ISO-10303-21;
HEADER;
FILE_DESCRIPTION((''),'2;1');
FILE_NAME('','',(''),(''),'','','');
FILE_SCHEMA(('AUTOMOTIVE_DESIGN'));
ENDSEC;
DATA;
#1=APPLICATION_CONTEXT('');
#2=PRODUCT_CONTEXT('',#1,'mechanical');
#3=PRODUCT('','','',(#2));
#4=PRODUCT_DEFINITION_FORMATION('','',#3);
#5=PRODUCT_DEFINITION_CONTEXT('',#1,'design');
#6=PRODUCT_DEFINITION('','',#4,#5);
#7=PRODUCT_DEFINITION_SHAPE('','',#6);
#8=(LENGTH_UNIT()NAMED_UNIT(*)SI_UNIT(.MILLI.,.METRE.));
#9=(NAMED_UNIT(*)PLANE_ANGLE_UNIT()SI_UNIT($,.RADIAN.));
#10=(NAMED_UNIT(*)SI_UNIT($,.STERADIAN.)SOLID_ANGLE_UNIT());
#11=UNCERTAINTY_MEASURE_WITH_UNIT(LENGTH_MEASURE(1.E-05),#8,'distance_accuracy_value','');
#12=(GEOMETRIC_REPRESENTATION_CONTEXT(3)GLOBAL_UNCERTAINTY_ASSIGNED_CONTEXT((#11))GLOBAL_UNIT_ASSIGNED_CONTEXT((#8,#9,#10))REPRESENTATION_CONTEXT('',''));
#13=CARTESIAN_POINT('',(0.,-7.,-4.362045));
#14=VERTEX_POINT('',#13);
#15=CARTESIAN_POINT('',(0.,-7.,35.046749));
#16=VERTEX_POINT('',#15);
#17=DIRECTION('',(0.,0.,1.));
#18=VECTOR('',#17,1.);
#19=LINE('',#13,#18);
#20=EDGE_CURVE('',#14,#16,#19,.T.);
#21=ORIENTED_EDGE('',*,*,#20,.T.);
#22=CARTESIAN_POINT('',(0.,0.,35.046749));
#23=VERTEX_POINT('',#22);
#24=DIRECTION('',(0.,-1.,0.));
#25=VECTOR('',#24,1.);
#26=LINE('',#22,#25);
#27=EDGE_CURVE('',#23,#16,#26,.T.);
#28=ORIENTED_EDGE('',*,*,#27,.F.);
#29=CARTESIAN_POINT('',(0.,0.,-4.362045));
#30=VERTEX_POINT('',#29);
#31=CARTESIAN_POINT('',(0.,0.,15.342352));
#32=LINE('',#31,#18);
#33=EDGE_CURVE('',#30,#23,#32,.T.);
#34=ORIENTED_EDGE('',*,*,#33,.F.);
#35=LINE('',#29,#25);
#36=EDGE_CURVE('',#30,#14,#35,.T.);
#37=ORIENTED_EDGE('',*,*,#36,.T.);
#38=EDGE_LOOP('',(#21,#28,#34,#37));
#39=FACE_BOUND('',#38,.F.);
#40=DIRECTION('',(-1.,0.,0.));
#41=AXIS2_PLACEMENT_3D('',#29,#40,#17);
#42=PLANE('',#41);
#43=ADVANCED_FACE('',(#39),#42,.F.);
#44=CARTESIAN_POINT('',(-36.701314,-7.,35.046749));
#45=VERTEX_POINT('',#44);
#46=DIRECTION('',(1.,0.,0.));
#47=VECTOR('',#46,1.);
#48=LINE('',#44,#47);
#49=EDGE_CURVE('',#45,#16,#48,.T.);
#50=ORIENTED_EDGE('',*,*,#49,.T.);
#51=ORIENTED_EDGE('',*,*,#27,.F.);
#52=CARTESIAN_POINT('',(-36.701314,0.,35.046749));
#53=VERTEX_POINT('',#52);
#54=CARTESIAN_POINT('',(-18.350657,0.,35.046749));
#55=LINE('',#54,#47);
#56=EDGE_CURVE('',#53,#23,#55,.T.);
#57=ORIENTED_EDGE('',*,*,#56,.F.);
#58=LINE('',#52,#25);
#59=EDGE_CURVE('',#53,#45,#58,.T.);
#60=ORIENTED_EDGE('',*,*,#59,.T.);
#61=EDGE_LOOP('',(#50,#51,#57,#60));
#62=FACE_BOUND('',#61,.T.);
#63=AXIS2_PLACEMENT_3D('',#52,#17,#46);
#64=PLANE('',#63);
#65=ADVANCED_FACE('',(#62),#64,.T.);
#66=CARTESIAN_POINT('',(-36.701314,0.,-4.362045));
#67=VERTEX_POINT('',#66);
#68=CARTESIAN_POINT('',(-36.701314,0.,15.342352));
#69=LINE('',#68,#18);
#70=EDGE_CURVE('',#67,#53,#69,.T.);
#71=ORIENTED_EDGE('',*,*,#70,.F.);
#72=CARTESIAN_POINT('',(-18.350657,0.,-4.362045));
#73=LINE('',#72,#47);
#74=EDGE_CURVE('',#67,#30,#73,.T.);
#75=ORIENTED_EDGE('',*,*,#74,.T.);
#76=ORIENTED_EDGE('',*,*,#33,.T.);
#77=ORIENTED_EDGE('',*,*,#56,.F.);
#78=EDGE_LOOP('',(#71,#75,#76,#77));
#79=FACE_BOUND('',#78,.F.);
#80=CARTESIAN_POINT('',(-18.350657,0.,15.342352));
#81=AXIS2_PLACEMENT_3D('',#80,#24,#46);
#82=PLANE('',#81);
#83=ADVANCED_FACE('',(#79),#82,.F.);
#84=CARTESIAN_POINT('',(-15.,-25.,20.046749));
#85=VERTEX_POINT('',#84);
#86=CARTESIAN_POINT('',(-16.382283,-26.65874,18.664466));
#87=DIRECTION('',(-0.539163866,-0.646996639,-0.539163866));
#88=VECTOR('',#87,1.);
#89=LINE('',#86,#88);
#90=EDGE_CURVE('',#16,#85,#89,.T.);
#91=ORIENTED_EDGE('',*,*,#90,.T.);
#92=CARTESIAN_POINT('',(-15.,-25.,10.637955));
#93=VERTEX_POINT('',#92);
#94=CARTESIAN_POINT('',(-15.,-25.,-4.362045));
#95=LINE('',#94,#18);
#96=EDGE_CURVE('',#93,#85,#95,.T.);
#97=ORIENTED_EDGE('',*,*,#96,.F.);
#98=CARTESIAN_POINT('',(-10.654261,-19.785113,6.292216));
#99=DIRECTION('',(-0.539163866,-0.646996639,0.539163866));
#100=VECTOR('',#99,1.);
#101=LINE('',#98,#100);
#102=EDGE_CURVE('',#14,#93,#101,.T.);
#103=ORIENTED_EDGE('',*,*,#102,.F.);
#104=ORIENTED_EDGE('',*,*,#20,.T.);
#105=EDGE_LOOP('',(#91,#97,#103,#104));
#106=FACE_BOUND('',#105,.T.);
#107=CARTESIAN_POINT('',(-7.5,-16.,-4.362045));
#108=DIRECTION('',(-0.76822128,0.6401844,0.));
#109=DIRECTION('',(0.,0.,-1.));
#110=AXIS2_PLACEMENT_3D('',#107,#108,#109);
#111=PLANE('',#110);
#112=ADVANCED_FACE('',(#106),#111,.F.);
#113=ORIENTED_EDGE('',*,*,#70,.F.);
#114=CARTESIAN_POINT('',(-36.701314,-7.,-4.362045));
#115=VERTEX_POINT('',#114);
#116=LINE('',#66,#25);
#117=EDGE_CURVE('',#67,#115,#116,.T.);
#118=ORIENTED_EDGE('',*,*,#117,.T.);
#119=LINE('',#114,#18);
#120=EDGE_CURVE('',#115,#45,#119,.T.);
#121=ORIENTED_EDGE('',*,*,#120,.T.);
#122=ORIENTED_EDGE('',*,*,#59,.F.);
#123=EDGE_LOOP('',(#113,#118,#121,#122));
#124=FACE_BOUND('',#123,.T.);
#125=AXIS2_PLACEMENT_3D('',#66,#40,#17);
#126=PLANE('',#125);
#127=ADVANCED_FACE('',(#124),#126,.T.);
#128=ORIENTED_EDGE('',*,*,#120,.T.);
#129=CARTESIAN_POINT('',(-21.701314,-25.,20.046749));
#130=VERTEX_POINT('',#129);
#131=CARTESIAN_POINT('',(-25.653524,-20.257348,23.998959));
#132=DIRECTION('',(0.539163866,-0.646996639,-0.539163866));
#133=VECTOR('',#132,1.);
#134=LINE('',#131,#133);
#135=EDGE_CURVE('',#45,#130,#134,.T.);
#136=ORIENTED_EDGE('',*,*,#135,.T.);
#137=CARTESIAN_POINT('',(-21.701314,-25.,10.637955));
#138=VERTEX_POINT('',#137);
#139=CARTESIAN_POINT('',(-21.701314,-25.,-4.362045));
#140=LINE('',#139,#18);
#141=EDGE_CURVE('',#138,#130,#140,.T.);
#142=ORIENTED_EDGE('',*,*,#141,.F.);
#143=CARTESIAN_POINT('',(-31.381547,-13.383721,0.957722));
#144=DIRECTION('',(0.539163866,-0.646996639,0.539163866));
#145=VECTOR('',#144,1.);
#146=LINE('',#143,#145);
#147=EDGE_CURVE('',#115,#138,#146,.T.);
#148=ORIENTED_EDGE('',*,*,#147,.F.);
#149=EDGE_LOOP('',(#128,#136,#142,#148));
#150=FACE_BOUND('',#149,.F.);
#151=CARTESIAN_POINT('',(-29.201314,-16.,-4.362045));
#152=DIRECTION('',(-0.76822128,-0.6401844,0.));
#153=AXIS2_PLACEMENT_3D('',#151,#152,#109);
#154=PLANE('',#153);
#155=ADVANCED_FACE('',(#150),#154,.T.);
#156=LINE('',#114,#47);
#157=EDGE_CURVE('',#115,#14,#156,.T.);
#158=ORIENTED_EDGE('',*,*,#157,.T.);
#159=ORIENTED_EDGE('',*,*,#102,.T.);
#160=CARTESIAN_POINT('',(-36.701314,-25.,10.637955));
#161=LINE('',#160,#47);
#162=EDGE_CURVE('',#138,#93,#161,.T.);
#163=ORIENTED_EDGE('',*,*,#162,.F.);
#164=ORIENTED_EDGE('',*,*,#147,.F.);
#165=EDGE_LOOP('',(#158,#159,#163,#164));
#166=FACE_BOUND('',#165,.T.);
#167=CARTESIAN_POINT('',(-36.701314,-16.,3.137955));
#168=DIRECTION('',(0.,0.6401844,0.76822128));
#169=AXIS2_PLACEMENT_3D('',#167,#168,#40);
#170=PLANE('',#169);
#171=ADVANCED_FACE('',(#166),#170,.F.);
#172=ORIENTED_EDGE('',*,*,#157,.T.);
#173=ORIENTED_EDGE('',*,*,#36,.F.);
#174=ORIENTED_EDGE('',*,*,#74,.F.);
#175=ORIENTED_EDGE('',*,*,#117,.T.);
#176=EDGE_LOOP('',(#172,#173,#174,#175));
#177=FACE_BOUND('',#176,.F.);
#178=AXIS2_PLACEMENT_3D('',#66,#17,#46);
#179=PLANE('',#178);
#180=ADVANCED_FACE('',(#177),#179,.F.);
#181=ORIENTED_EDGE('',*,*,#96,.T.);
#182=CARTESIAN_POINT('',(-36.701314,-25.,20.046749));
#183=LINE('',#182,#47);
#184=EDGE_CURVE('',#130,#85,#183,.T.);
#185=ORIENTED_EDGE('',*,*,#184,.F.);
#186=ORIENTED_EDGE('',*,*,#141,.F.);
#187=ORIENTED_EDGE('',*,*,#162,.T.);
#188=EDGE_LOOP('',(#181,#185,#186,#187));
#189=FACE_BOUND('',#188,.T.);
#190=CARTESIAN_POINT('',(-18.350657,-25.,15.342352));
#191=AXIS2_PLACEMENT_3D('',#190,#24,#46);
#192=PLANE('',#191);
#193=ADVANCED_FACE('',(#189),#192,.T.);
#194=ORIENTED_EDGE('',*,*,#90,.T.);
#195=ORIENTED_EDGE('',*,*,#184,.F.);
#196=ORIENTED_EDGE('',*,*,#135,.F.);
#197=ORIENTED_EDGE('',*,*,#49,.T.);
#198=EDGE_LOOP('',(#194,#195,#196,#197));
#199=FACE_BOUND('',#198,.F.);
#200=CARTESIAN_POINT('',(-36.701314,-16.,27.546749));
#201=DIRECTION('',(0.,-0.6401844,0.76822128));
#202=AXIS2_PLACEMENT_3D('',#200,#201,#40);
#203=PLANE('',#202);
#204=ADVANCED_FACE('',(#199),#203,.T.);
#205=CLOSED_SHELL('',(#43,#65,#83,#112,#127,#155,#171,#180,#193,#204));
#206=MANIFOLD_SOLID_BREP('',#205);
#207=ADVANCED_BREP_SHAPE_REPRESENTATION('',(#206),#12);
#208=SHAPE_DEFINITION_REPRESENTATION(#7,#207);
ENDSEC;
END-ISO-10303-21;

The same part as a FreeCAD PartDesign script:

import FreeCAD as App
import Part
import Sketcher
Q = App.Units.Quantity


def edges_at(feature, points):
    """Names of the edges that pass closest to the given points."""
    edges = feature.Shape.Edges
    near = lambda p: min(range(len(edges)), key=lambda i: edges[i].distToShape(Part.Vertex(*p))[0])
    return sorted({f"Edge{near(p) + 1}" for p in points})

doc = App.newDocument("Part")
body = doc.addObject("PartDesign::Body", "Body")

sketch1 = body.newObject("Sketcher::SketchObject", "Sketch")
sketch1.AttachmentSupport = (doc.getObject("XZ_Plane"), [""])
sketch1.MapMode = "FlatFace"
sketch1.addGeometry([
    Part.LineSegment(App.Vector(-36.701314, 35.046749, 0), App.Vector(-36.701314, -4.362045, 0)),
    Part.LineSegment(App.Vector(-36.701314, -4.362045, 0), App.Vector(0, -4.362045, 0)),
    Part.LineSegment(App.Vector(0, -4.362045, 0), App.Vector(0, 35.046749, 0)),
    Part.LineSegment(App.Vector(0, 35.046749, 0), App.Vector(-36.701314, 35.046749, 0)),
], False)
sketch1.addConstraint([
    Sketcher.Constraint("Coincident", 0, 2, 1, 1),
    Sketcher.Constraint("Coincident", 1, 2, 2, 1),
    Sketcher.Constraint("Coincident", 2, 2, 3, 1),
    Sketcher.Constraint("Coincident", 3, 2, 0, 1),
    Sketcher.Constraint("Vertical", 0),
    Sketcher.Constraint("Horizontal", 1),
    Sketcher.Constraint("Vertical", 2),
    Sketcher.Constraint("Horizontal", 3),
    Sketcher.Constraint("PointOnObject", 1, 2, -2),
    Sketcher.Constraint("DistanceX", 1, 1, 1, 2, Q("36.701314 mm")),
    Sketcher.Constraint("DistanceY", 0, 2, 0, 1, Q("39.408794 mm")),
    Sketcher.Constraint("DistanceY", -1, 1, 2, 2, Q("35.046749 mm")),
])
pad1 = body.newObject("PartDesign::Pad", "Pad")
pad1.Profile = sketch1
pad1.Length = 25
doc.recompute()

chamfer = body.newObject("PartDesign::Chamfer", "Chamfer")
chamfer.Base = (pad1, edges_at(pad1, [
    (-18.351, -25, -4.362),
    (0, -25, 15.342),
    (-18.351, -25, 35.047),
    (-36.701, -25, 15.342),
]))
chamfer.ChamferType = "Two distances"
chamfer.Size = 18
chamfer.Size2 = 15

doc.recompute()
